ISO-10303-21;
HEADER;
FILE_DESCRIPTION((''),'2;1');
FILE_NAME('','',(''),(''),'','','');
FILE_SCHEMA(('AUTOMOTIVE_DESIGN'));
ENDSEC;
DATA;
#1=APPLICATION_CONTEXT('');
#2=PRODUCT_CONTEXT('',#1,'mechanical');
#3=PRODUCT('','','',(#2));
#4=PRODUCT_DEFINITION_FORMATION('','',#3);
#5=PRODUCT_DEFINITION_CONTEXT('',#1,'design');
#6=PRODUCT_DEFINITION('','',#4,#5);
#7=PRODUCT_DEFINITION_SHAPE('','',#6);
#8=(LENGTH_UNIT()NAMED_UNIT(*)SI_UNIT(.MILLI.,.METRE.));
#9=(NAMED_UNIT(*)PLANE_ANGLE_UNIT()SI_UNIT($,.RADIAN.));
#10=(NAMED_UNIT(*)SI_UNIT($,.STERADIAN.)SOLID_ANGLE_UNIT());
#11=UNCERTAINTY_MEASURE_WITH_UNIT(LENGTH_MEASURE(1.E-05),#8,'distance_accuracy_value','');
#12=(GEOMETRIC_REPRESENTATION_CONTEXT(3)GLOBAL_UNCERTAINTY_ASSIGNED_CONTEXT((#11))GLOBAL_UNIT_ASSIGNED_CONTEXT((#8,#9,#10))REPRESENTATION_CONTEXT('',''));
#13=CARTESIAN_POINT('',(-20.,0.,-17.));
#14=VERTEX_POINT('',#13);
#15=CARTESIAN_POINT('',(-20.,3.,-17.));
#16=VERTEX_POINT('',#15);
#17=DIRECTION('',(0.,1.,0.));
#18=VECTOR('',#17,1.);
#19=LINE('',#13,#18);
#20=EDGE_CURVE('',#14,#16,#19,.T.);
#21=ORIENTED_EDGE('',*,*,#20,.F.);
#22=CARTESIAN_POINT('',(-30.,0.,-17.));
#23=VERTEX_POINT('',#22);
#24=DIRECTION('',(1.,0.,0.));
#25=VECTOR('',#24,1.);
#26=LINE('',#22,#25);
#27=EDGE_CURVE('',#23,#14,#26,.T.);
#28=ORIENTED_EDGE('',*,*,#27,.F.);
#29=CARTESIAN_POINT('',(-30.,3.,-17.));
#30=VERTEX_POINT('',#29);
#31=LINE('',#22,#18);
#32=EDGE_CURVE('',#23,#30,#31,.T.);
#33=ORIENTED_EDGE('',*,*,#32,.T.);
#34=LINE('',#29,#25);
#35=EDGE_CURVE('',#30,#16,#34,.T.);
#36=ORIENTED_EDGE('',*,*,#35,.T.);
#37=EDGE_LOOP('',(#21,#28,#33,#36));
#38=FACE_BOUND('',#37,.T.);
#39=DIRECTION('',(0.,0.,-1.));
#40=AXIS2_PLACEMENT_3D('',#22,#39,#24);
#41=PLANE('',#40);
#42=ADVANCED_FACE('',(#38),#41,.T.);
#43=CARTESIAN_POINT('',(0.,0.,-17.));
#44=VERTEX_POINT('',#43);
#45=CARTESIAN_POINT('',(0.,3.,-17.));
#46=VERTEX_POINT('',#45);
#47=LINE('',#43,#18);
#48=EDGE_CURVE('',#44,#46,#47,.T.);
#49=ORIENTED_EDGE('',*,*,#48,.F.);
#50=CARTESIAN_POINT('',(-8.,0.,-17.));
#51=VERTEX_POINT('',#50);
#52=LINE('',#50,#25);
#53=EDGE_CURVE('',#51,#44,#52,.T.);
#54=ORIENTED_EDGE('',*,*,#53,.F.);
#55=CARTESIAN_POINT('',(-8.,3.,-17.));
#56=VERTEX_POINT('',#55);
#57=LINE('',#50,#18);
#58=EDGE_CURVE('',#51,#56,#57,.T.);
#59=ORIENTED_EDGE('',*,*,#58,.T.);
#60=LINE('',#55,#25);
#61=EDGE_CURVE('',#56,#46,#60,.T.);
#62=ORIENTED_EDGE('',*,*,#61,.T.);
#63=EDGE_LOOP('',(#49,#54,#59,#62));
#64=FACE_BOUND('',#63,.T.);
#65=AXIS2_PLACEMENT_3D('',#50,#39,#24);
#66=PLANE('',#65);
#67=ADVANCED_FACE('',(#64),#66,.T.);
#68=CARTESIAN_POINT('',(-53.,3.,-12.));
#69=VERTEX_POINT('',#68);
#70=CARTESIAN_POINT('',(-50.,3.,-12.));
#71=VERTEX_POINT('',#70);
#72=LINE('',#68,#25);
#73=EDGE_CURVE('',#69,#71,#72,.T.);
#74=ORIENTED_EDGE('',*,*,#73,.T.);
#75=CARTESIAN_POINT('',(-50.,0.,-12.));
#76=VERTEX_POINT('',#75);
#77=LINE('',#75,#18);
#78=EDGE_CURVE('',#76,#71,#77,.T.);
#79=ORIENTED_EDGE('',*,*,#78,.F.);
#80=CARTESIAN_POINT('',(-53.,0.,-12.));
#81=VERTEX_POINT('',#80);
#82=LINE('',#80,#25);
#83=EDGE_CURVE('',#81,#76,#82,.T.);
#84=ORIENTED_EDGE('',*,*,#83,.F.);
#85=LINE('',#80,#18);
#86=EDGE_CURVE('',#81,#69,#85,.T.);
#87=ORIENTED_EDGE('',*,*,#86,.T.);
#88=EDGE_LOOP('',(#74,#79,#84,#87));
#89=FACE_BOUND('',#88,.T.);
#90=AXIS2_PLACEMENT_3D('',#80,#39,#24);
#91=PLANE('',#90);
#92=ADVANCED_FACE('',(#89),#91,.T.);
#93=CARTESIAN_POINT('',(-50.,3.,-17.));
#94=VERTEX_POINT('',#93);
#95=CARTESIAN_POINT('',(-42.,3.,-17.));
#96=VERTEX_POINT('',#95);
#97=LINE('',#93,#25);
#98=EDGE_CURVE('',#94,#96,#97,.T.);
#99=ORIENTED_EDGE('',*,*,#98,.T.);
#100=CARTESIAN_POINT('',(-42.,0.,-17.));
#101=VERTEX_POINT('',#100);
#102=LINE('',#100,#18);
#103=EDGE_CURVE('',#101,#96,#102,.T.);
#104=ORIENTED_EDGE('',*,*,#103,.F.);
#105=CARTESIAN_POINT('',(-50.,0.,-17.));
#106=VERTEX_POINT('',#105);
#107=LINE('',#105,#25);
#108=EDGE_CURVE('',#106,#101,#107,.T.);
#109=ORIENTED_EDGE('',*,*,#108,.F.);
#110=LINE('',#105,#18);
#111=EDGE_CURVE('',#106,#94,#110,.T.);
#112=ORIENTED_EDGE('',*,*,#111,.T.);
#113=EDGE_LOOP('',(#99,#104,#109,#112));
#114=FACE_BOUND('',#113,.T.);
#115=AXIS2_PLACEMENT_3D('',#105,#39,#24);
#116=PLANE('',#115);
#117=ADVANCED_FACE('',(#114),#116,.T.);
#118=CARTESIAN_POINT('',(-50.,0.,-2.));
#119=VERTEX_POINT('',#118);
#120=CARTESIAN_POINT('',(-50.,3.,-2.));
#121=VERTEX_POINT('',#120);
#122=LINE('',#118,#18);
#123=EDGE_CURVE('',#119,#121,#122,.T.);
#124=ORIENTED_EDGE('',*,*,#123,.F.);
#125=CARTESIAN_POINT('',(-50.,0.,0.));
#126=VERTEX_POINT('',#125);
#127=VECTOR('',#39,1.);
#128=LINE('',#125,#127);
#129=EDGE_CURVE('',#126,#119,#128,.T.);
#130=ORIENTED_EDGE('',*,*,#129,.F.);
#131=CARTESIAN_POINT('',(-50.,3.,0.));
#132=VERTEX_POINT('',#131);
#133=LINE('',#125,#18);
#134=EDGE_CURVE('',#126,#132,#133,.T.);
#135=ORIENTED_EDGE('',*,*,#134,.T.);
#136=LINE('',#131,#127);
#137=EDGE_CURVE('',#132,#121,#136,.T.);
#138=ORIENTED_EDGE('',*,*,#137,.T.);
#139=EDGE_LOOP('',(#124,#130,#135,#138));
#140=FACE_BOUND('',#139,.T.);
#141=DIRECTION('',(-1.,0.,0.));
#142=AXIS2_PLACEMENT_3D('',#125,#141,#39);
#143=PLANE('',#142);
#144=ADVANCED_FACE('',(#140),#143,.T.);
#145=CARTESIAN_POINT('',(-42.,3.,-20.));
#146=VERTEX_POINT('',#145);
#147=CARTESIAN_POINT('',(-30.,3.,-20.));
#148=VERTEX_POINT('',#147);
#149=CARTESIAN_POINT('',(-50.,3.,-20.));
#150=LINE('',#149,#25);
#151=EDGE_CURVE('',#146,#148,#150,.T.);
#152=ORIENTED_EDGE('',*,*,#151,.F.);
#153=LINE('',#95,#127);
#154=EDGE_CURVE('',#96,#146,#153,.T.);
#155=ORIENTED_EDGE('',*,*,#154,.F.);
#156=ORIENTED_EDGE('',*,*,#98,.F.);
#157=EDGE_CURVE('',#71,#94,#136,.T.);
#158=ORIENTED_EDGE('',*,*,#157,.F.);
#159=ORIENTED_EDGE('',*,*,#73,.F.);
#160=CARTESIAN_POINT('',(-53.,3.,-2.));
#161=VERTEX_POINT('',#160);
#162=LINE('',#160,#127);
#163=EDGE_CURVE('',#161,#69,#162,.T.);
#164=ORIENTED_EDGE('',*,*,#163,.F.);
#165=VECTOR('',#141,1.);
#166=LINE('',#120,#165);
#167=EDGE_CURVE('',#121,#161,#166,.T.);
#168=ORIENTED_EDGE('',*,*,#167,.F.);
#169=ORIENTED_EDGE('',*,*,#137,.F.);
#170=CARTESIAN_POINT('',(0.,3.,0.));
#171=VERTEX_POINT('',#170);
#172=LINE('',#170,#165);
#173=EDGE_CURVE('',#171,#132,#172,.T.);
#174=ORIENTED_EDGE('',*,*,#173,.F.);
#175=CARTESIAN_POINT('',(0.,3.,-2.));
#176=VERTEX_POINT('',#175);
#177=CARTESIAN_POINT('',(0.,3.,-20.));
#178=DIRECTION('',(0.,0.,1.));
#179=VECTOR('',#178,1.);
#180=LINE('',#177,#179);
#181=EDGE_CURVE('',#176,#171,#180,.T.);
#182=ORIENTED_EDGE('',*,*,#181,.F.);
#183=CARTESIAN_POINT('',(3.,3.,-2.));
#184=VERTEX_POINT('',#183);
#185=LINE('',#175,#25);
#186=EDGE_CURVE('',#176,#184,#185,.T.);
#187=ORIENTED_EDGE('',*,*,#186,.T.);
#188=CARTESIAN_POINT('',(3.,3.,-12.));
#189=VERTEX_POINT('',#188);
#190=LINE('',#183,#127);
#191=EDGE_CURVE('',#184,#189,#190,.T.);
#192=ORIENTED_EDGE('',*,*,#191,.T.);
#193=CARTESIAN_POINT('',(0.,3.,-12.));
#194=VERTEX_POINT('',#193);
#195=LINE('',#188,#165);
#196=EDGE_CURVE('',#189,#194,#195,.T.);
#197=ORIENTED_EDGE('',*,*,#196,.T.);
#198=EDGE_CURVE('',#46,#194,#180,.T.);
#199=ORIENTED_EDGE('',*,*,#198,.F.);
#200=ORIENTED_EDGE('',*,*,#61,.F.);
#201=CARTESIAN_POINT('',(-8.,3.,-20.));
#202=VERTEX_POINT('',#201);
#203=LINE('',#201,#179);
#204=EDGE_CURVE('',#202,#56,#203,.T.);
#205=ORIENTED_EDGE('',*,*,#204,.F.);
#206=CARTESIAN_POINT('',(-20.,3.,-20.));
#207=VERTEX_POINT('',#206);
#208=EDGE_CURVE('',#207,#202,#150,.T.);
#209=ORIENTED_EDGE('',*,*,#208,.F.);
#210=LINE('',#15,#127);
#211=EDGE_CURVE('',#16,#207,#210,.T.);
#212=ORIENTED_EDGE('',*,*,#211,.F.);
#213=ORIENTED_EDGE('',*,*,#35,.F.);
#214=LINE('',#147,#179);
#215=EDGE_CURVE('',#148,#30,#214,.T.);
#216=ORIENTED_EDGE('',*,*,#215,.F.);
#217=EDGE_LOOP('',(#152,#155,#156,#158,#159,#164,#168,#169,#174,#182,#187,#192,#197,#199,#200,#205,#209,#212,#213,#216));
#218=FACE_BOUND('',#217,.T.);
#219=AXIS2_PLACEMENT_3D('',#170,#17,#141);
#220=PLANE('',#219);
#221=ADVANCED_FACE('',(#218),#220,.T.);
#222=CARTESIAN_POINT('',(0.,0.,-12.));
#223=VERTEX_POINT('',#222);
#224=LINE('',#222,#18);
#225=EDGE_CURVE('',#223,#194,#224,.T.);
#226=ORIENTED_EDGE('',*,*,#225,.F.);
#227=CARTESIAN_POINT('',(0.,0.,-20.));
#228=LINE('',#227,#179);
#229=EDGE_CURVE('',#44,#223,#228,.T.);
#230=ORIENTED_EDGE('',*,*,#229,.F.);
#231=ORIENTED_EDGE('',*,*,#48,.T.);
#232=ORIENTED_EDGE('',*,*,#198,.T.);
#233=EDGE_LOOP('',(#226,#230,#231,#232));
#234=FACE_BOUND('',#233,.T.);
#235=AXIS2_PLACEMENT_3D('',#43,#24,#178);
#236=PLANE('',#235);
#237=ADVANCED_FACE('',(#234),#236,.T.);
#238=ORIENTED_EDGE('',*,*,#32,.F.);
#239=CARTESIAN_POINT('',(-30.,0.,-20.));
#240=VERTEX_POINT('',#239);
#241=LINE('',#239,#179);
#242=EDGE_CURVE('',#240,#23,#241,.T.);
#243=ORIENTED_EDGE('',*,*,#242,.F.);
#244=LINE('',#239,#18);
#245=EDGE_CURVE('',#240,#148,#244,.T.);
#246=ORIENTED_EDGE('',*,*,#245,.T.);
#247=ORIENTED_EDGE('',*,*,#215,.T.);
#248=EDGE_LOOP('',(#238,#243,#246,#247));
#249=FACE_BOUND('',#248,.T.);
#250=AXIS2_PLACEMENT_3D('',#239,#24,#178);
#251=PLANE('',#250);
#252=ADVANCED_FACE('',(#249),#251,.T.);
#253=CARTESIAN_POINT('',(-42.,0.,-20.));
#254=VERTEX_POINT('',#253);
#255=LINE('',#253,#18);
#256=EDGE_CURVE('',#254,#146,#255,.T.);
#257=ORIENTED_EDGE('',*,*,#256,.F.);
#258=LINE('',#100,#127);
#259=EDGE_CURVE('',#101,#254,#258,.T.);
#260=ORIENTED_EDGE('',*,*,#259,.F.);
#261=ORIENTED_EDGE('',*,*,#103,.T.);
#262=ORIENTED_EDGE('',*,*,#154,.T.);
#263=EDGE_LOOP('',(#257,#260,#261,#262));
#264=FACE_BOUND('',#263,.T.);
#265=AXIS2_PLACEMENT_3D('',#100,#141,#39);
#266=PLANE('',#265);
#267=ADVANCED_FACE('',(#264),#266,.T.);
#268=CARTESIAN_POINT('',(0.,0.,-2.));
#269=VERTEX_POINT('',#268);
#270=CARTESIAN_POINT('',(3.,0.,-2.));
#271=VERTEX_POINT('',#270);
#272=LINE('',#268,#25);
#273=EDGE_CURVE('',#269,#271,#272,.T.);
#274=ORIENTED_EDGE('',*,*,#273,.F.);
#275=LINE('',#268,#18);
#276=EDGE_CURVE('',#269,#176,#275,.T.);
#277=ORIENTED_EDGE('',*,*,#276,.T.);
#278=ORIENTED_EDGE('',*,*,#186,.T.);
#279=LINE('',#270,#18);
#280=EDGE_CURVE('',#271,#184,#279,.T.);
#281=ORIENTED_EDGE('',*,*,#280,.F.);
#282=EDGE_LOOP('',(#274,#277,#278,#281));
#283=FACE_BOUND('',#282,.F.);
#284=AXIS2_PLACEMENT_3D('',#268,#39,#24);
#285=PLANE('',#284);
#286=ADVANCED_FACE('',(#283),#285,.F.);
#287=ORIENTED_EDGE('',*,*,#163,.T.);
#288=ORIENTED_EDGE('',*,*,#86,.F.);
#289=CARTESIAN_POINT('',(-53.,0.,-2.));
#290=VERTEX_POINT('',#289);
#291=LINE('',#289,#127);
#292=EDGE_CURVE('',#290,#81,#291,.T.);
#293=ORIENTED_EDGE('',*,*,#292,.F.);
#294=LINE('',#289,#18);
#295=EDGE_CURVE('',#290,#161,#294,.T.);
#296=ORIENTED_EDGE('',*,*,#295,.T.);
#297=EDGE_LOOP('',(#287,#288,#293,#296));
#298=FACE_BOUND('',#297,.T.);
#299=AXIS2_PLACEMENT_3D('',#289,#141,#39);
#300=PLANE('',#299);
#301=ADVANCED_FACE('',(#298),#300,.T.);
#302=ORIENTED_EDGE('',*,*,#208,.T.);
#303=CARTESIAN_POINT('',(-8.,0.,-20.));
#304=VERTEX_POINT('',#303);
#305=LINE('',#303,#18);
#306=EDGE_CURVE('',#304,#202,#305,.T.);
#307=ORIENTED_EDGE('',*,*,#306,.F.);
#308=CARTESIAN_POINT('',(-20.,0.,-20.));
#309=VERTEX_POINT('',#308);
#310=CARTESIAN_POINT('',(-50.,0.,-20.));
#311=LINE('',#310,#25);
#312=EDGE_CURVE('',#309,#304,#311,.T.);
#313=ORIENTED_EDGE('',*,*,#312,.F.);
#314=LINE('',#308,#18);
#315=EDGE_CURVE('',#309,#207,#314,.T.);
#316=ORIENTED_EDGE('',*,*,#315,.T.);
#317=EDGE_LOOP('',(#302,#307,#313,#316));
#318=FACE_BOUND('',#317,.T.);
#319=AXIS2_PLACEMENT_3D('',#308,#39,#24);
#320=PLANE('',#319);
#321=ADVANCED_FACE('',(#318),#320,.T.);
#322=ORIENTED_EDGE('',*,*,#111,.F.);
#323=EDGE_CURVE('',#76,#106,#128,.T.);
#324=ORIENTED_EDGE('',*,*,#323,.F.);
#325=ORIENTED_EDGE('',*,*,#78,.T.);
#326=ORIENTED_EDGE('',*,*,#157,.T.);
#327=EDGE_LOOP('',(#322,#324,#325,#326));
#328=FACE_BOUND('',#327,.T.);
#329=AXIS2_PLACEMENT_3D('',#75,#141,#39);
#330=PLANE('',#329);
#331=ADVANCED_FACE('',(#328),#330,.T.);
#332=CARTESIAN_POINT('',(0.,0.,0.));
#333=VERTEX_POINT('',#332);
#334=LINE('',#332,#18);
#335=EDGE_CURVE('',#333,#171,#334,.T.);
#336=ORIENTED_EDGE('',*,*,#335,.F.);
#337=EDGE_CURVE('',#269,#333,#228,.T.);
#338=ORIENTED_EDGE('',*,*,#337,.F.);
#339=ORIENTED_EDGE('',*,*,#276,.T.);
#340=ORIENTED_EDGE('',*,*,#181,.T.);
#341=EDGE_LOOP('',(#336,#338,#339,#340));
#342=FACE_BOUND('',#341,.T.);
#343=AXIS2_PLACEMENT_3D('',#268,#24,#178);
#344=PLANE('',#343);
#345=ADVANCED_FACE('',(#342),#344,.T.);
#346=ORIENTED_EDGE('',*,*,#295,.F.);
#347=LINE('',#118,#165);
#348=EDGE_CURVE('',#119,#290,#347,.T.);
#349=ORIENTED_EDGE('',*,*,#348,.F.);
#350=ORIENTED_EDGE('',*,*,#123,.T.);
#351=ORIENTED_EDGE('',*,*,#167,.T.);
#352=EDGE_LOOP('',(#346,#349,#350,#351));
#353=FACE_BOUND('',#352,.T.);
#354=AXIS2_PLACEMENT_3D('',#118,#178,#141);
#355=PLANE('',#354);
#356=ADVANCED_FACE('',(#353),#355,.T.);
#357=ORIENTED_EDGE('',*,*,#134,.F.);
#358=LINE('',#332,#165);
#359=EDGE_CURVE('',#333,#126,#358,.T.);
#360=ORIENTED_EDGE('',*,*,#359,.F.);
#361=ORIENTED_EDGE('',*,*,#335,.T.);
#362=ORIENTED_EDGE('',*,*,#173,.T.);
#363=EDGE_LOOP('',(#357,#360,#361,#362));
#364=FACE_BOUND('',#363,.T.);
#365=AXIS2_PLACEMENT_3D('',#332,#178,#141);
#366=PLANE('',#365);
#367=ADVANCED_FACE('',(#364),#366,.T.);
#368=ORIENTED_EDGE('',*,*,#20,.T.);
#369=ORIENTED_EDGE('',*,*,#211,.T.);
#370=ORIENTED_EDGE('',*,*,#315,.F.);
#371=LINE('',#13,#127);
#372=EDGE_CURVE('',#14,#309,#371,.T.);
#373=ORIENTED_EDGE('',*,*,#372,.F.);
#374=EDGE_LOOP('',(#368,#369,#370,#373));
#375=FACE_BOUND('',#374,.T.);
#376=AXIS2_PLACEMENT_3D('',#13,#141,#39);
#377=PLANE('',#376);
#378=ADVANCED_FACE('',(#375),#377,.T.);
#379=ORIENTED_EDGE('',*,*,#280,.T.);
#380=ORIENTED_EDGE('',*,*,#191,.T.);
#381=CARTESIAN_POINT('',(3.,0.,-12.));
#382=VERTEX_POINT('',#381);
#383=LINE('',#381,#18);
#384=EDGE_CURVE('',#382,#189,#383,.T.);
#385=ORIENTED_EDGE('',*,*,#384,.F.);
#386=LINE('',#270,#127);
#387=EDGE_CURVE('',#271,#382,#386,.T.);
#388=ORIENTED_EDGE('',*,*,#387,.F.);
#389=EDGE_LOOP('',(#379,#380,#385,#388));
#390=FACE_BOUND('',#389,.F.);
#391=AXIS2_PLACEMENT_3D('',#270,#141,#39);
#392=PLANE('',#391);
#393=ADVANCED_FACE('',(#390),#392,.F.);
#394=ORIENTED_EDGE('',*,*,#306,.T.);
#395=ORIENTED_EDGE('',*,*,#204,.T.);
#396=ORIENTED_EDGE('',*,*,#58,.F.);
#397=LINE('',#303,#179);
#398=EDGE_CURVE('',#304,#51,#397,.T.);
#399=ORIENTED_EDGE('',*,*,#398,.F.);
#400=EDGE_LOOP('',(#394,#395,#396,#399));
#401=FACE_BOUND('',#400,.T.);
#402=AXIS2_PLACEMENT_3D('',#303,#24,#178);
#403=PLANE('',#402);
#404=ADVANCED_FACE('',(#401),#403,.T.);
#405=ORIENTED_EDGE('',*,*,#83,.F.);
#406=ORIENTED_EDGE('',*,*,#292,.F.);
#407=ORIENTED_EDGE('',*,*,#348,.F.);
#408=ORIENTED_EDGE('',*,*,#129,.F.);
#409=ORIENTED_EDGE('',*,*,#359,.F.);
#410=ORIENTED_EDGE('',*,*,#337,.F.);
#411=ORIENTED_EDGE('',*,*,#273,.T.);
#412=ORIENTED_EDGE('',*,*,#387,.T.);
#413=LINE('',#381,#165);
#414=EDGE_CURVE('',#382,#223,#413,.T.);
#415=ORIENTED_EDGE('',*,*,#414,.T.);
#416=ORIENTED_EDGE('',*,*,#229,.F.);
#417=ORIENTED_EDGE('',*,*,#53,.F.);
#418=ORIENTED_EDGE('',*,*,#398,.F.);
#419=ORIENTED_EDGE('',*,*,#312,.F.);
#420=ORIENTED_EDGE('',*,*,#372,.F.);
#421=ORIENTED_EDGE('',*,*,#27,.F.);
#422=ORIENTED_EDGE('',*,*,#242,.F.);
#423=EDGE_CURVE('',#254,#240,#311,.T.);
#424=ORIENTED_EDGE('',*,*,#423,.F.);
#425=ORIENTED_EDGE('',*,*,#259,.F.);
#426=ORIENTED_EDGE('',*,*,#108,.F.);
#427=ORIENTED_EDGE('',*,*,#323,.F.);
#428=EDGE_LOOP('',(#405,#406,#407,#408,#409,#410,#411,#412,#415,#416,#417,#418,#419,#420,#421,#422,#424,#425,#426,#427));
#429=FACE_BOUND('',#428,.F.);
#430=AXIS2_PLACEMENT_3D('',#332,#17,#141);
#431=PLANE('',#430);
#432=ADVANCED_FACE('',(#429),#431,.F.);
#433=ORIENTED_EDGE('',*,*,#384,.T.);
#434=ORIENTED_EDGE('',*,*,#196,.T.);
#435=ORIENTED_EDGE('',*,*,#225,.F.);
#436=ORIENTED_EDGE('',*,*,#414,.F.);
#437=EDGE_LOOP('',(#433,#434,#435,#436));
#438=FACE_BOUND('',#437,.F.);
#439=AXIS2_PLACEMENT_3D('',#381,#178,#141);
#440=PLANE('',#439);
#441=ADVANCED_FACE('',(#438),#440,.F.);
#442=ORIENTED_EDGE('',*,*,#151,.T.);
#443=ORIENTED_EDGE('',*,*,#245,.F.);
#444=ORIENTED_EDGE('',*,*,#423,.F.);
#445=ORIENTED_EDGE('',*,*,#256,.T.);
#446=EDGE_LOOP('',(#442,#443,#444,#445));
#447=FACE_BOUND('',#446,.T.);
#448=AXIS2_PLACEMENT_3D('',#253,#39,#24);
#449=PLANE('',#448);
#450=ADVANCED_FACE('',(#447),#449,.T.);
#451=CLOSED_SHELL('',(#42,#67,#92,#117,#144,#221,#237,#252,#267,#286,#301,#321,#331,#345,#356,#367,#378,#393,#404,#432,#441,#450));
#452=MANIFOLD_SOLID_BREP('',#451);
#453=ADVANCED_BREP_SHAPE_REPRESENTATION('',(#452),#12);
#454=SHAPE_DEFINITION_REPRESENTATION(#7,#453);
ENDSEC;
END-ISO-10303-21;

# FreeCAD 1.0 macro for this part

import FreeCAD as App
import Part
import Sketcher
Q = App.Units.Quantity

doc = App.newDocument("Part")
body = doc.addObject("PartDesign::Body", "Body")

# Sketch on XZ plane
sketch1 = body.newObject("Sketcher::SketchObject", "Sketch")
sketch1.AttachmentSupport = (doc.getObject("XZ_Plane"), [""])
sketch1.MapMode = "FlatFace"
sketch1.addGeometry(Part.LineSegment(App.Vector(-50, 0, 0), App.Vector(0, 0, 0)), False)
sketch1.addGeometry(Part.LineSegment(App.Vector(0, 0, 0), App.Vector(0, -2, 0)), False)
sketch1.addGeometry(Part.LineSegment(App.Vector(0, -2, 0), App.Vector(3, -2, 0)), False)
sketch1.addGeometry(Part.LineSegment(App.Vector(3, -2, 0), App.Vector(3, -12, 0)), False)
sketch1.addGeometry(Part.LineSegment(App.Vector(3, -12, 0), App.Vector(0, -12, 0)), False)
sketch1.addGeometry(Part.LineSegment(App.Vector(0, -12, 0), App.Vector(0, -17, 0)), False)
sketch1.addGeometry(Part.LineSegment(App.Vector(0, -17, 0), App.Vector(-8, -17, 0)), False)
sketch1.addGeometry(Part.LineSegment(App.Vector(-8, -17, 0), App.Vector(-8, -20, 0)), False)
sketch1.addGeometry(Part.LineSegment(App.Vector(-8, -20, 0), App.Vector(-20, -20, 0)), False)
sketch1.addGeometry(Part.LineSegment(App.Vector(-20, -20, 0), App.Vector(-20, -17, 0)), False)
sketch1.addGeometry(Part.LineSegment(App.Vector(-20, -17, 0), App.Vector(-30, -17, 0)), False)
sketch1.addGeometry(Part.LineSegment(App.Vector(-30, -17, 0), App.Vector(-30, -20, 0)), False)
sketch1.addGeometry(Part.LineSegment(App.Vector(-30, -20, 0), App.Vector(-42, -20, 0)), False)
sketch1.addGeometry(Part.LineSegment(App.Vector(-42, -20, 0), App.Vector(-42, -17, 0)), False)
sketch1.addGeometry(Part.LineSegment(App.Vector(-42, -17, 0), App.Vector(-50, -17, 0)), False)
sketch1.addGeometry(Part.LineSegment(App.Vector(-50, -17, 0), App.Vector(-50, -12, 0)), False)
sketch1.addGeometry(Part.LineSegment(App.Vector(-50, -12, 0), App.Vector(-53, -12, 0)), False)
sketch1.addGeometry(Part.LineSegment(App.Vector(-53, -12, 0), App.Vector(-53, -2, 0)), False)
sketch1.addGeometry(Part.LineSegment(App.Vector(-53, -2, 0), App.Vector(-50, -2, 0)), False)
sketch1.addGeometry(Part.LineSegment(App.Vector(-50, -2, 0), App.Vector(-50, 0, 0)), False)
sketch1.addConstraint(Sketcher.Constraint("Coincident", 0, 2, 1, 1))
sketch1.addConstraint(Sketcher.Constraint("Coincident", 1, 2, 2, 1))
sketch1.addConstraint(Sketcher.Constraint("Coincident", 2, 2, 3, 1))
sketch1.addConstraint(Sketcher.Constraint("Coincident", 3, 2, 4, 1))
sketch1.addConstraint(Sketcher.Constraint("Coincident", 4, 2, 5, 1))
sketch1.addConstraint(Sketcher.Constraint("Coincident", 5, 2, 6, 1))
sketch1.addConstraint(Sketcher.Constraint("Coincident", 6, 2, 7, 1))
sketch1.addConstraint(Sketcher.Constraint("Coincident", 7, 2, 8, 1))
sketch1.addConstraint(Sketcher.Constraint("Coincident", 8, 2, 9, 1))
sketch1.addConstraint(Sketcher.Constraint("Coincident", 9, 2, 10, 1))
sketch1.addConstraint(Sketcher.Constraint("Coincident", 10, 2, 11, 1))
sketch1.addConstraint(Sketcher.Constraint("Coincident", 11, 2, 12, 1))
sketch1.addConstraint(Sketcher.Constraint("Coincident", 12, 2, 13, 1))
sketch1.addConstraint(Sketcher.Constraint("Coincident", 13, 2, 14, 1))
sketch1.addConstraint(Sketcher.Constraint("Coincident", 14, 2, 15, 1))
sketch1.addConstraint(Sketcher.Constraint("Coincident", 15, 2, 16, 1))
sketch1.addConstraint(Sketcher.Constraint("Coincident", 16, 2, 17, 1))
sketch1.addConstraint(Sketcher.Constraint("Coincident", 17, 2, 18, 1))
sketch1.addConstraint(Sketcher.Constraint("Coincident", 18, 2, 19, 1))
sketch1.addConstraint(Sketcher.Constraint("Coincident", 19, 2, 0, 1))
sketch1.addConstraint(Sketcher.Constraint("Horizontal", 0))
sketch1.addConstraint(Sketcher.Constraint("Vertical", 1))
sketch1.addConstraint(Sketcher.Constraint("Horizontal", 2))
sketch1.addConstraint(Sketcher.Constraint("Vertical", 3))
sketch1.addConstraint(Sketcher.Constraint("Horizontal", 4))
sketch1.addConstraint(Sketcher.Constraint("Vertical", 5))
sketch1.addConstraint(Sketcher.Constraint("Horizontal", 6))
sketch1.addConstraint(Sketcher.Constraint("Vertical", 7))
sketch1.addConstraint(Sketcher.Constraint("Horizontal", 8))
sketch1.addConstraint(Sketcher.Constraint("Vertical", 9))
sketch1.addConstraint(Sketcher.Constraint("Horizontal", 10))
sketch1.addConstraint(Sketcher.Constraint("Vertical", 11))
sketch1.addConstraint(Sketcher.Constraint("Horizontal", 12))
sketch1.addConstraint(Sketcher.Constraint("Vertical", 13))
sketch1.addConstraint(Sketcher.Constraint("Horizontal", 14))
sketch1.addConstraint(Sketcher.Constraint("Vertical", 15))
sketch1.addConstraint(Sketcher.Constraint("Horizontal", 16))
sketch1.addConstraint(Sketcher.Constraint("Vertical", 17))
sketch1.addConstraint(Sketcher.Constraint("Horizontal", 18))
sketch1.addConstraint(Sketcher.Constraint("Vertical", 19))
sketch1.addConstraint(Sketcher.Constraint("Coincident", 0, 2, -1, 1))
sketch1.addConstraint(Sketcher.Constraint("PointOnObject", 4, 2, -2))
sketch1.addConstraint(Sketcher.Constraint("Horizontal", 6, 2, 9, 2))
sketch1.addConstraint(Sketcher.Constraint("Horizontal", 8, 2, 11, 2))
sketch1.addConstraint(Sketcher.Constraint("Horizontal", 10, 2, 13, 2))
sketch1.addConstraint(Sketcher.Constraint("Horizontal", 4, 2, 15, 2))
sketch1.addConstraint(Sketcher.Constraint("Horizontal", 2, 2, 17, 2))
sketch1.addConstraint(Sketcher.Constraint("Vertical", 15, 2, 18, 2))
sketch1.addConstraint(Sketcher.Constraint("Equal", 8, 12))
sketch1.addConstraint(Sketcher.Constraint("Equal", 6, 14))
sketch1.addConstraint(Sketcher.Constraint("Equal", 4, 16))
sketch1.addConstraint(Sketcher.Constraint("Equal", 10, 3))
sketch1.addConstraint(Sketcher.Constraint("Equal", 18, 7))
sketch1.addConstraint(Sketcher.Constraint("DistanceX", 0, 1, 0, 2, Q("50 mm")))
sketch1.addConstraint(Sketcher.Constraint("DistanceX", 2, 1, 2, 2, Q("3 mm")))
sketch1.addConstraint(Sketcher.Constraint("DistanceX", 6, 2, 6, 1, Q("8 mm")))
sketch1.addConstraint(Sketcher.Constraint("DistanceX", 10, 2, 10, 1, Q("10 mm")))
sketch1.addConstraint(Sketcher.Constraint("DistanceY", 1, 2, 1, 1, Q("2 mm")))
sketch1.addConstraint(Sketcher.Constraint("DistanceY", 7, 2, -1, 1, Q("20 mm")))
pad1 = body.newObject("PartDesign::Pad", "Pad")
pad1.Profile = sketch1
pad1.Length = 3
pad1.Reversed = True

doc.recompute()
